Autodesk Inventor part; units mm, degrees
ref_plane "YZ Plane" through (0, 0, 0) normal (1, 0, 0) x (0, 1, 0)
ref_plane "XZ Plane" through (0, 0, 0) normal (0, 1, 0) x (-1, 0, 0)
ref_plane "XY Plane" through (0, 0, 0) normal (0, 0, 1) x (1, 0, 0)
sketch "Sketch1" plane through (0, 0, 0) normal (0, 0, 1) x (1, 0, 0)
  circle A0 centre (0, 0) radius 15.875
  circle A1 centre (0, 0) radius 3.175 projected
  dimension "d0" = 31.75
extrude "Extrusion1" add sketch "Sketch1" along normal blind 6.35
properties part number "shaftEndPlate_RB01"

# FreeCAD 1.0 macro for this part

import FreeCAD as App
import Part
import Sketcher
from FreeCAD import Vector
Q = App.Units.Quantity

doc = App.newDocument("Part")
body = doc.addObject("PartDesign::Body", "Body")

# Sketch on XY plane
sketch1 = doc.addObject("Sketcher::SketchObject", "Sketch")
body.addObject(sketch1)
sketch1.AttachmentSupport = (doc.XY_Plane, [""])
sketch1.MapMode = "FlatFace"
sketch1.addGeometry([
    Part.Circle(Vector(0, 0, 0), Vector(0, 0, 1), 15.9),
    Part.Circle(Vector(0, 0, 0), Vector(0, 0, 1), 3.2),
], False)
sketch1.addConstraint([
    Sketcher.Constraint("Coincident", 0, 3, -1, 1),
    Sketcher.Constraint("Coincident", 1, 3, -1, 1),
    Sketcher.Constraint("Diameter", 0, Q("1.25 in")),
    Sketcher.Constraint("Diameter", 1, Q("0.25 in")),
])
pad1 = doc.addObject("PartDesign::Pad", "Pad")
body.addObject(pad1)
pad1.Profile = sketch1
pad1.Length = Q("0.25 in")

doc.recompute()
